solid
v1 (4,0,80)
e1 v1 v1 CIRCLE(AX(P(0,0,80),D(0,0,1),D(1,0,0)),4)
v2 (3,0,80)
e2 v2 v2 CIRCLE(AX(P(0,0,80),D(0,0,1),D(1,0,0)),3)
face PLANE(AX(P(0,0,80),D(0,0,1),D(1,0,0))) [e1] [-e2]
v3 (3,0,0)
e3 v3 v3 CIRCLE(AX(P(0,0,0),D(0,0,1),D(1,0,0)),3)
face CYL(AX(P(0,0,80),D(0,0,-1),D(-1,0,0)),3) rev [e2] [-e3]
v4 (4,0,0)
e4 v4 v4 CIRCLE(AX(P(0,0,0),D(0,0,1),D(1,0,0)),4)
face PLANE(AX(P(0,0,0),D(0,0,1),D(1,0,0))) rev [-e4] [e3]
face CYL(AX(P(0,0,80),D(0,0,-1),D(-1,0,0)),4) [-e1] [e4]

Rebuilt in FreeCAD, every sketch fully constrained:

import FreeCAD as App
import Part
import Sketcher
from FreeCAD import Vector
Q = App.Units.Quantity

doc = App.newDocument("Part")
body = doc.addObject("PartDesign::Body", "Body")

sketch1 = doc.addObject("Sketcher::SketchObject", "Sketch")
body.addObject(sketch1)
sketch1.AttachmentSupport = (doc.XY_Plane, [""])
sketch1.MapMode = "FlatFace"
sketch1.addGeometry([
    Part.Circle(Vector(0, 0, 0), Vector(0, 0, 1), 4),
    Part.Circle(Vector(0, 0, 0), Vector(0, 0, 1), 3),
], False)
sketch1.addConstraint([
    Sketcher.Constraint("Coincident", 0, 3, -1, 1),
    Sketcher.Constraint("Coincident", 1, 3, -1, 1),
    Sketcher.Constraint("Diameter", 0, Q("8 mm")),
    Sketcher.Constraint("Diameter", 1, Q("6 mm")),
])
pad1 = doc.addObject("PartDesign::Pad", "Pad")
body.addObject(pad1)
pad1.Profile = sketch1
pad1.Length = 80

doc.recompute()
